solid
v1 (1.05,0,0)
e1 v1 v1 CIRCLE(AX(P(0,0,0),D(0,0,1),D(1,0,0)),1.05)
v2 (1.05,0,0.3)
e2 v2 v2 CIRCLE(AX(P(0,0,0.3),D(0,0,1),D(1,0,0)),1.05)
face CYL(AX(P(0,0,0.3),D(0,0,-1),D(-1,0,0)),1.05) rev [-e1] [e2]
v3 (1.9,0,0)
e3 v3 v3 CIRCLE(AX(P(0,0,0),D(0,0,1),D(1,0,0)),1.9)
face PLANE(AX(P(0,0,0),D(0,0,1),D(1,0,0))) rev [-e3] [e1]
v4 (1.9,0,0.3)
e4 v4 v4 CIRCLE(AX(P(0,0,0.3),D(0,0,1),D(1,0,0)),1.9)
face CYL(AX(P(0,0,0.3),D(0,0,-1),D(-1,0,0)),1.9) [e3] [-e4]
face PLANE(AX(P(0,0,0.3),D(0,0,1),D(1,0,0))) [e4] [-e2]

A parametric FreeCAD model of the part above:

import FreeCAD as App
import Part
import Sketcher
Q = App.Units.Quantity

doc = App.newDocument("Part")
params = doc.addObject("Spreadsheet::Sheet", "Params")
for row, (alias, value) in enumerate([
    ("sketch1_diameter", "3.8 mm"),
    ("sketch1_diameter2", "2.1 mm"),
    ("pad1_length", "0.3 mm"),
], start=1):
    params.set(f"A{row}", alias)
    params.set(f"B{row}", "=" + value)
    params.setAlias(f"B{row}", alias)

body = doc.addObject("PartDesign::Body", "Body")

# Sketch on XY plane
sketch1 = body.newObject("Sketcher::SketchObject", "Sketch")
sketch1.AttachmentSupport = (doc.getObject("XY_Plane"), [""])
sketch1.MapMode = "FlatFace"
sketch1.addGeometry([
    Part.Circle(App.Vector(0, 0, 0), App.Vector(0, 0, 1), 1.9),
    Part.Circle(App.Vector(0, 0, 0), App.Vector(0, 0, 1), 1.1),
], False)
sketch1.addConstraint([
    Sketcher.Constraint("Coincident", 0, 3, -1, 1),
    Sketcher.Constraint("Coincident", 1, 3, -1, 1),
    Sketcher.Constraint("Diameter", 0, Q("3.8 mm")),
    Sketcher.Constraint("Diameter", 1, Q("2.1 mm")),
])
sketch1.setExpression("Constraints[2]", "Params.sketch1_diameter")
sketch1.setExpression("Constraints[3]", "Params.sketch1_diameter2")
pad1 = body.newObject("PartDesign::Pad", "Pad")
pad1.Profile = sketch1
pad1.setExpression("Length", "Params.pad1_length")

doc.recompute()
